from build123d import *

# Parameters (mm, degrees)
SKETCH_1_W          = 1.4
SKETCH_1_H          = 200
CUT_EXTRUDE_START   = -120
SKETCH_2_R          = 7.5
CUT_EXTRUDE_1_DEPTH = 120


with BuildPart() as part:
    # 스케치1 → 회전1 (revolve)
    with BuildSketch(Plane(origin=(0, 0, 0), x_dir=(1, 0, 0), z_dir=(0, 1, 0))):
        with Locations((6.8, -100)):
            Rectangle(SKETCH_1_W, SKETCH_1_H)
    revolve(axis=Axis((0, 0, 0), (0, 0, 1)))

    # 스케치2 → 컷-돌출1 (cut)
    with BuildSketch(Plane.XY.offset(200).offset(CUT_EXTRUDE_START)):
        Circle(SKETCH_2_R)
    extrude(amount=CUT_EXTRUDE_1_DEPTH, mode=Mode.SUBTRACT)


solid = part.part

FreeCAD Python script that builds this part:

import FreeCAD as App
import Part
import Sketcher

V = App.Vector
Q = App.Units.Quantity


def add_polygon(sketch, points):
    """Adds a closed chain of lines whose ends are joined by coincident constraints."""
    first, n = sketch.GeometryCount, len(points)
    for a, b in zip(points, points[1:] + points[:1]):
        sketch.addGeometry(Part.LineSegment(App.Vector(*a, 0), App.Vector(*b, 0)), False)
    for i in range(n):
        sketch.addConstraint(Sketcher.Constraint("Coincident", first + i, 2, first + (i + 1) % n, 1))

doc = App.newDocument("Part")
body = doc.addObject("PartDesign::Body", "Body")

sketch1 = body.newObject("Sketcher::SketchObject", "Sketch")
sketch1.AttachmentSupport = (doc.getObject("XZ_Plane"), [""])
sketch1.MapMode = "FlatFace"
add_polygon(sketch1, [(6.1, 0), (6.1, 200), (7.5, 200), (7.5, 0)])
sketch1.addConstraint([
    Sketcher.Constraint("Vertical", 0),
    Sketcher.Constraint("Horizontal", 1),
    Sketcher.Constraint("Vertical", 2),
    Sketcher.Constraint("Horizontal", 3),
    Sketcher.Constraint("PointOnObject", 2, 2, -1),
    Sketcher.Constraint("DistanceY", 0, 1, 0, 2, Q("200 mm")),
    Sketcher.Constraint("DistanceX", 1, 1, 1, 2, Q("1.4 mm")),
    Sketcher.Constraint("DistanceX", -1, 1, 0, 2, Q("6.1 mm")),
])
revolution = body.newObject("PartDesign::Revolution", "Revolution")
revolution.Profile = sketch1
revolution.ReferenceAxis = (sketch1, ["V_Axis"])
revolution.Angle = 360

sketch2 = body.newObject("Sketcher::SketchObject", "Sketch001")
sketch2.AttachmentSupport = (doc.getObject("XY_Plane"), [""])
sketch2.MapMode = "FlatFace"
sketch2.AttachmentOffset = App.Placement(V(0, 0, 80), App.Rotation())
sketch2.addGeometry(Part.Circle(V(0, 0, 0), V(0, 0, 1), 8), False)
sketch2.addConstraint([
    Sketcher.Constraint("Coincident", 0, 3, -1, 1),
    Sketcher.Constraint("Diameter", 0, Q("15 mm")),
])
pocket1 = body.newObject("PartDesign::Pocket", "Pocket")
pocket1.Profile = sketch2
pocket1.Length = 120
pocket1.Reversed = True

doc.recompute()
